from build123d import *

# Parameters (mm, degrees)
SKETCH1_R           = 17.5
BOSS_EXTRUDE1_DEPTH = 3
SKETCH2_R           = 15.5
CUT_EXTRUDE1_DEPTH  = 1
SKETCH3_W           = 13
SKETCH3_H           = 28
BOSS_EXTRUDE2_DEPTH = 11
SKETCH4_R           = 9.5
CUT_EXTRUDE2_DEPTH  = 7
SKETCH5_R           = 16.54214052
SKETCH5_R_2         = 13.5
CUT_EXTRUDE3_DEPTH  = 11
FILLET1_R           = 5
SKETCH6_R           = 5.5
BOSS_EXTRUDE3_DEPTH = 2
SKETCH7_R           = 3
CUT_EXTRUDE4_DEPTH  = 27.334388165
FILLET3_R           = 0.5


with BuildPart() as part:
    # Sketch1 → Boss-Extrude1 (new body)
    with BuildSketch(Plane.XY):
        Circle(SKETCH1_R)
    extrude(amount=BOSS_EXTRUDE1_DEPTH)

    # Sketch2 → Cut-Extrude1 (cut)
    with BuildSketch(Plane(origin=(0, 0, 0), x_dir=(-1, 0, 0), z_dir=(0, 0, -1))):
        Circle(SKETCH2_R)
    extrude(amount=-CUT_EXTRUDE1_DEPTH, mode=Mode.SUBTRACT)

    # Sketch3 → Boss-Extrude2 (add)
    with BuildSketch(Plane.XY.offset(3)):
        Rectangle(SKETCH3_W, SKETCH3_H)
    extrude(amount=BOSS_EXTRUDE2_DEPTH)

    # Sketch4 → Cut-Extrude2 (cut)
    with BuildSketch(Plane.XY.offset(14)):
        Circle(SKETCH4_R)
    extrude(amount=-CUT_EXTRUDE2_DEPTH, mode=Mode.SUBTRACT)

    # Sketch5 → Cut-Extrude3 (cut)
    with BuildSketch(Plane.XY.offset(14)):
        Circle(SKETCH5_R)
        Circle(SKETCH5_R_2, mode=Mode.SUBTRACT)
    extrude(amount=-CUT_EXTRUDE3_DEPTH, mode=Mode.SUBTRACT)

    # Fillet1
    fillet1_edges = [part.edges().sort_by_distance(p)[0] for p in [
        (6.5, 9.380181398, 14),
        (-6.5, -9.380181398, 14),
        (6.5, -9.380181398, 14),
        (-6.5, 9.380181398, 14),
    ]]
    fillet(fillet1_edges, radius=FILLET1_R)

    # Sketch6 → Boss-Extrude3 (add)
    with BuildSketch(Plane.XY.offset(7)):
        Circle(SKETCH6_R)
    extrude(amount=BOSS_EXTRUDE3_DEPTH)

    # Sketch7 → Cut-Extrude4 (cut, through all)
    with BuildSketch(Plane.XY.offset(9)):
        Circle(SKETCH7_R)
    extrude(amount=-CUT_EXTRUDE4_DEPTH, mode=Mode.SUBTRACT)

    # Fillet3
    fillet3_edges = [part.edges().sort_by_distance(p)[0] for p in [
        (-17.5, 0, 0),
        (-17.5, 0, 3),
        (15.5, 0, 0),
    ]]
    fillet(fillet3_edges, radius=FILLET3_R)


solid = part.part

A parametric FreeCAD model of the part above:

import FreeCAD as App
import Part
import Sketcher

V = App.Vector
Q = App.Units.Quantity


def edges_at(feature, points):
    """Names of the edges that pass closest to the given points."""
    edges = feature.Shape.Edges
    near = lambda p: min(range(len(edges)), key=lambda i: edges[i].distToShape(Part.Vertex(*p))[0])
    return sorted({f"Edge{near(p) + 1}" for p in points})


def add_polygon(sketch, points):
    """Adds a closed chain of lines whose ends are joined by coincident constraints."""
    first, n = sketch.GeometryCount, len(points)
    for a, b in zip(points, points[1:] + points[:1]):
        sketch.addGeometry(Part.LineSegment(App.Vector(*a, 0), App.Vector(*b, 0)), False)
    for i in range(n):
        sketch.addConstraint(Sketcher.Constraint("Coincident", first + i, 2, first + (i + 1) % n, 1))

doc = App.newDocument("Part")
body = doc.addObject("PartDesign::Body", "Body")

sketch1 = doc.addObject("Sketcher::SketchObject", "Sketch")
body.addObject(sketch1)
sketch1.AttachmentSupport = (doc.XY_Plane, [""])
sketch1.MapMode = "FlatFace"
sketch1.addGeometry(Part.Circle(V(0, 0, 0), V(0, 0, 1), 17.5), False)
sketch1.addConstraint(Sketcher.Constraint("Coincident", 0, 3, -1, 1))
sketch1.addConstraint(Sketcher.Constraint("Diameter", 0, Q("35 mm")))
pad1 = doc.addObject("PartDesign::Pad", "Pad")
body.addObject(pad1)
pad1.Profile = sketch1
pad1.Length = 3

sketch2 = doc.addObject("Sketcher::SketchObject", "Sketch001")
body.addObject(sketch2)
sketch2.AttachmentSupport = (doc.XY_Plane, [""])
sketch2.MapMode = "FlatFace"
sketch2.addGeometry(Part.Circle(V(0, 0, 0), V(0, 0, 1), 15.5), False)
sketch2.addConstraint(Sketcher.Constraint("Coincident", 0, 3, -1, 1))
sketch2.addConstraint(Sketcher.Constraint("Diameter", 0, Q("31 mm")))
pocket1 = doc.addObject("PartDesign::Pocket", "Pocket")
body.addObject(pocket1)
pocket1.Profile = sketch2
pocket1.Length = 1
pocket1.Reversed = True

sketch3 = doc.addObject("Sketcher::SketchObject", "Sketch002")
body.addObject(sketch3)
sketch3.AttachmentSupport = (doc.XY_Plane, [""])
sketch3.MapMode = "FlatFace"
sketch3.AttachmentOffset = App.Placement(V(0, 0, 3), App.Rotation())
add_polygon(sketch3, [(-6.5, 14), (-6.5, -14), (6.5, -14), (6.5, 14)])
sketch3.addConstraint(Sketcher.Constraint("Vertical", 0))
sketch3.addConstraint(Sketcher.Constraint("Horizontal", 1))
sketch3.addConstraint(Sketcher.Constraint("Vertical", 2))
sketch3.addConstraint(Sketcher.Constraint("Horizontal", 3))
sketch3.addConstraint(Sketcher.Constraint("Symmetric", 0, 2, 2, 2, -1, 1))
sketch3.addConstraint(Sketcher.Constraint("DistanceX", 1, 1, 1, 2, Q("13 mm")))
sketch3.addConstraint(Sketcher.Constraint("DistanceY", 0, 2, 0, 1, Q("28 mm")))
pad2 = doc.addObject("PartDesign::Pad", "Pad001")
body.addObject(pad2)
pad2.Profile = sketch3
pad2.Length = 11

sketch4 = doc.addObject("Sketcher::SketchObject", "Sketch003")
body.addObject(sketch4)
sketch4.AttachmentSupport = (doc.XY_Plane, [""])
sketch4.MapMode = "FlatFace"
sketch4.AttachmentOffset = App.Placement(V(0, 0, 14), App.Rotation())
sketch4.addGeometry(Part.Circle(V(0, 0, 0), V(0, 0, 1), 9.5), False)
sketch4.addConstraint(Sketcher.Constraint("Coincident", 0, 3, -1, 1))
sketch4.addConstraint(Sketcher.Constraint("Diameter", 0, Q("19 mm")))
pocket2 = doc.addObject("PartDesign::Pocket", "Pocket001")
body.addObject(pocket2)
pocket2.Profile = sketch4
pocket2.Length = 7

sketch5 = doc.addObject("Sketcher::SketchObject", "Sketch004")
body.addObject(sketch5)
sketch5.AttachmentSupport = (doc.XY_Plane, [""])
sketch5.MapMode = "FlatFace"
sketch5.AttachmentOffset = App.Placement(V(0, 0, 14), App.Rotation())
sketch5.addGeometry(Part.Circle(V(0, 0, 0), V(0, 0, 1), 16.542141), False)
sketch5.addGeometry(Part.Circle(V(0, 0, 0), V(0, 0, 1), 13.5), False)
sketch5.addConstraint(Sketcher.Constraint("Coincident", 0, 3, -1, 1))
sketch5.addConstraint(Sketcher.Constraint("Coincident", 1, 3, -1, 1))
sketch5.addConstraint(Sketcher.Constraint("Diameter", 1, Q("27 mm")))
sketch5.addConstraint(Sketcher.Constraint("Diameter", 0, Q("33.084281 mm")))
pocket3 = doc.addObject("PartDesign::Pocket", "Pocket002")
body.addObject(pocket3)
pocket3.Profile = sketch5
pocket3.Length = 11
doc.recompute()

fillet = doc.addObject("PartDesign::Fillet", "Fillet")
body.addObject(fillet)
fillet.Base = (pocket3, edges_at(pocket3, [
    (6.5, 9.38, 14),
    (-6.5, -9.38, 14),
    (6.5, -9.38, 14),
    (-6.5, 9.38, 14),
]))
fillet.Radius = 5

sketch6 = doc.addObject("Sketcher::SketchObject", "Sketch005")
body.addObject(sketch6)
sketch6.AttachmentSupport = (doc.XY_Plane, [""])
sketch6.MapMode = "FlatFace"
sketch6.AttachmentOffset = App.Placement(V(0, 0, 7), App.Rotation())
sketch6.addGeometry(Part.Circle(V(0, 0, 0), V(0, 0, 1), 5.5), False)
sketch6.addConstraint(Sketcher.Constraint("Coincident", 0, 3, -1, 1))
sketch6.addConstraint(Sketcher.Constraint("Diameter", 0, Q("11 mm")))
pad3 = doc.addObject("PartDesign::Pad", "Pad002")
body.addObject(pad3)
pad3.Profile = sketch6
pad3.Length = 2

sketch7 = doc.addObject("Sketcher::SketchObject", "Sketch006")
body.addObject(sketch7)
sketch7.AttachmentSupport = (doc.XY_Plane, [""])
sketch7.MapMode = "FlatFace"
sketch7.AttachmentOffset = App.Placement(V(0, 0, 9), App.Rotation())
sketch7.addGeometry(Part.Circle(V(0, 0, 0), V(0, 0, 1), 3), False)
sketch7.addConstraint(Sketcher.Constraint("Coincident", 0, 3, -1, 1))
sketch7.addConstraint(Sketcher.Constraint("Diameter", 0, Q("6 mm")))
pocket4 = doc.addObject("PartDesign::Pocket", "Pocket003")
body.addObject(pocket4)
pocket4.Profile = sketch7
pocket4.Type = "ThroughAll"
doc.recompute()

fillet2 = doc.addObject("PartDesign::Fillet", "Fillet001")
body.addObject(fillet2)
fillet2.Base = (pocket4, edges_at(pocket4, [(-17.5, 0, 0), (-17.5, 0, 3), (15.5, 0, 0)]))
fillet2.Radius = 0.5

doc.recompute()
